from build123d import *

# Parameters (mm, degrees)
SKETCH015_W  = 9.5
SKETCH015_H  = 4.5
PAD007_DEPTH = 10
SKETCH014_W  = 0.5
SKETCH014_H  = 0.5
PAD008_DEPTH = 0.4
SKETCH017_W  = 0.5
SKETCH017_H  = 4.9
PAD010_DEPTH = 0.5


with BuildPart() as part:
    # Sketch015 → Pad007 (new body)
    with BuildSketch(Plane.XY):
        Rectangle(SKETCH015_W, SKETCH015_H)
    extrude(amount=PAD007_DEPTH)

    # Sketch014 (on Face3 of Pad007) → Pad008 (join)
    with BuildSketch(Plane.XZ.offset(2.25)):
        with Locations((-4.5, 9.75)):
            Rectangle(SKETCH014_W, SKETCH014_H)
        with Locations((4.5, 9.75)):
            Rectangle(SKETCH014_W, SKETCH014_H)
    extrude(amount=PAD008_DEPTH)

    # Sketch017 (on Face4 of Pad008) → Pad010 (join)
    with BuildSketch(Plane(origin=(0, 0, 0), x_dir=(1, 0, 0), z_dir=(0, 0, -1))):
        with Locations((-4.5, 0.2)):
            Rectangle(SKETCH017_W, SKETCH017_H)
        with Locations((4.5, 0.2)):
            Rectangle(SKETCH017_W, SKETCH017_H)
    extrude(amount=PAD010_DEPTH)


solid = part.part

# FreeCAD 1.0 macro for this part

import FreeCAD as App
import Part
import Sketcher
Q = App.Units.Quantity


def add_polygon(sketch, points):
    """Adds a closed chain of lines whose ends are joined by coincident constraints."""
    first, n = sketch.GeometryCount, len(points)
    for a, b in zip(points, points[1:] + points[:1]):
        sketch.addGeometry(Part.LineSegment(App.Vector(*a, 0), App.Vector(*b, 0)), False)
    for i in range(n):
        sketch.addConstraint(Sketcher.Constraint("Coincident", first + i, 2, first + (i + 1) % n, 1))

doc = App.newDocument("Part")
params = doc.addObject("Spreadsheet::Sheet", "Params")
for row, (alias, value) in enumerate([
    ("sketch1_width", "9.5 mm"),
    ("sketch1_height", "4.5 mm"),
    ("pad1_length", "10 mm"),
    ("sketch2_width", "0.5 mm"),
    ("pad2_length", "0.4 mm"),
    ("sketch3_width", "0.5 mm"),
    ("sketch3_height", "4.9 mm"),
    ("pad3_length", "0.5 mm"),
], start=1):
    params.set(f"A{row}", alias)
    params.set(f"B{row}", "=" + value)
    params.setAlias(f"B{row}", alias)

body = doc.addObject("PartDesign::Body", "Body")

sketch1 = body.newObject("Sketcher::SketchObject", "Sketch")
sketch1.AttachmentSupport = (doc.getObject("XY_Plane"), [""])
sketch1.MapMode = "FlatFace"
add_polygon(sketch1, [(-4.8, 2.2), (-4.8, -2.2), (4.8, -2.2), (4.8, 2.2)])
sketch1.addConstraint([
    Sketcher.Constraint("Vertical", 0),
    Sketcher.Constraint("Horizontal", 1),
    Sketcher.Constraint("Vertical", 2),
    Sketcher.Constraint("Horizontal", 3),
    Sketcher.Constraint("Symmetric", 0, 2, 2, 2, -1, 1),
    Sketcher.Constraint("DistanceX", 1, 1, 1, 2, Q("9.5 mm")),
    Sketcher.Constraint("DistanceY", 0, 2, 0, 1, Q("4.5 mm")),
])
sketch1.setExpression("Constraints[9]", "Params.sketch1_width")
sketch1.setExpression("Constraints[10]", "Params.sketch1_height")
pad1 = body.newObject("PartDesign::Pad", "Pad")
pad1.Profile = sketch1
pad1.setExpression("Length", "Params.pad1_length")

sketch2 = body.newObject("Sketcher::SketchObject", "Sketch001")
sketch2.AttachmentSupport = (doc.getObject("XZ_Plane"), [""])
sketch2.MapMode = "FlatFace"
sketch2.AttachmentOffset = App.Placement(App.Vector(0, 0, 2.25), App.Rotation())
add_polygon(sketch2, [(-4.8, 10), (-4.8, 9.5), (-4.2, 9.5), (-4.2, 10)])
add_polygon(sketch2, [(4.2, 10), (4.2, 9.5), (4.8, 9.5), (4.8, 10)])
sketch2.addConstraint([
    Sketcher.Constraint("Vertical", 0),
    Sketcher.Constraint("Horizontal", 1),
    Sketcher.Constraint("Vertical", 2),
    Sketcher.Constraint("Horizontal", 3),
    Sketcher.Constraint("Vertical", 4),
    Sketcher.Constraint("Horizontal", 5),
    Sketcher.Constraint("Vertical", 6),
    Sketcher.Constraint("Horizontal", 7),
    Sketcher.Constraint("Symmetric", 1, 2, 4, 2, -2),
    Sketcher.Constraint("Symmetric", 3, 2, 6, 2, -2),
    Sketcher.Constraint("Equal", 7, 0),
    Sketcher.Constraint("DistanceX", 1, 1, 1, 2, Q("0.5 mm")),
    Sketcher.Constraint("DistanceY", -1, 1, 2, 2, Q("10 mm")),
    Sketcher.Constraint("DistanceX", 0, 2, 4, 2, Q("9 mm")),
])
sketch2.setExpression("Constraints[19]", "Params.sketch2_width")
pad2 = body.newObject("PartDesign::Pad", "Pad001")
pad2.Profile = sketch2
pad2.setExpression("Length", "Params.pad2_length")

sketch3 = body.newObject("Sketcher::SketchObject", "Sketch002")
sketch3.AttachmentSupport = (doc.getObject("XY_Plane"), [""])
sketch3.MapMode = "FlatFace"
add_polygon(sketch3, [(-4.8, -2.6), (-4.8, 2.2), (-4.2, 2.2), (-4.2, -2.6)])
add_polygon(sketch3, [(4.2, -2.6), (4.2, 2.2), (4.8, 2.2), (4.8, -2.6)])
sketch3.addConstraint([
    Sketcher.Constraint("Vertical", 0),
    Sketcher.Constraint("Horizontal", 1),
    Sketcher.Constraint("Vertical", 2),
    Sketcher.Constraint("Horizontal", 3),
    Sketcher.Constraint("Vertical", 4),
    Sketcher.Constraint("Horizontal", 5),
    Sketcher.Constraint("Vertical", 6),
    Sketcher.Constraint("Horizontal", 7),
    Sketcher.Constraint("Symmetric", 1, 2, 4, 2, -2),
    Sketcher.Constraint("Symmetric", 3, 2, 6, 2, -2),
    Sketcher.Constraint("DistanceX", 1, 1, 1, 2, Q("0.5 mm")),
    Sketcher.Constraint("DistanceY", 0, 1, 0, 2, Q("4.9 mm")),
    Sketcher.Constraint("DistanceX", 0, 2, 4, 2, Q("9 mm")),
    Sketcher.Constraint("DistanceY", -1, 1, 0, 2, Q("2.25 mm")),
])
sketch3.setExpression("Constraints[18]", "Params.sketch3_width")
sketch3.setExpression("Constraints[19]", "Params.sketch3_height")
pad3 = body.newObject("PartDesign::Pad", "Pad002")
pad3.Profile = sketch3
pad3.setExpression("Length", "Params.pad3_length")
pad3.Reversed = True

doc.recompute()
